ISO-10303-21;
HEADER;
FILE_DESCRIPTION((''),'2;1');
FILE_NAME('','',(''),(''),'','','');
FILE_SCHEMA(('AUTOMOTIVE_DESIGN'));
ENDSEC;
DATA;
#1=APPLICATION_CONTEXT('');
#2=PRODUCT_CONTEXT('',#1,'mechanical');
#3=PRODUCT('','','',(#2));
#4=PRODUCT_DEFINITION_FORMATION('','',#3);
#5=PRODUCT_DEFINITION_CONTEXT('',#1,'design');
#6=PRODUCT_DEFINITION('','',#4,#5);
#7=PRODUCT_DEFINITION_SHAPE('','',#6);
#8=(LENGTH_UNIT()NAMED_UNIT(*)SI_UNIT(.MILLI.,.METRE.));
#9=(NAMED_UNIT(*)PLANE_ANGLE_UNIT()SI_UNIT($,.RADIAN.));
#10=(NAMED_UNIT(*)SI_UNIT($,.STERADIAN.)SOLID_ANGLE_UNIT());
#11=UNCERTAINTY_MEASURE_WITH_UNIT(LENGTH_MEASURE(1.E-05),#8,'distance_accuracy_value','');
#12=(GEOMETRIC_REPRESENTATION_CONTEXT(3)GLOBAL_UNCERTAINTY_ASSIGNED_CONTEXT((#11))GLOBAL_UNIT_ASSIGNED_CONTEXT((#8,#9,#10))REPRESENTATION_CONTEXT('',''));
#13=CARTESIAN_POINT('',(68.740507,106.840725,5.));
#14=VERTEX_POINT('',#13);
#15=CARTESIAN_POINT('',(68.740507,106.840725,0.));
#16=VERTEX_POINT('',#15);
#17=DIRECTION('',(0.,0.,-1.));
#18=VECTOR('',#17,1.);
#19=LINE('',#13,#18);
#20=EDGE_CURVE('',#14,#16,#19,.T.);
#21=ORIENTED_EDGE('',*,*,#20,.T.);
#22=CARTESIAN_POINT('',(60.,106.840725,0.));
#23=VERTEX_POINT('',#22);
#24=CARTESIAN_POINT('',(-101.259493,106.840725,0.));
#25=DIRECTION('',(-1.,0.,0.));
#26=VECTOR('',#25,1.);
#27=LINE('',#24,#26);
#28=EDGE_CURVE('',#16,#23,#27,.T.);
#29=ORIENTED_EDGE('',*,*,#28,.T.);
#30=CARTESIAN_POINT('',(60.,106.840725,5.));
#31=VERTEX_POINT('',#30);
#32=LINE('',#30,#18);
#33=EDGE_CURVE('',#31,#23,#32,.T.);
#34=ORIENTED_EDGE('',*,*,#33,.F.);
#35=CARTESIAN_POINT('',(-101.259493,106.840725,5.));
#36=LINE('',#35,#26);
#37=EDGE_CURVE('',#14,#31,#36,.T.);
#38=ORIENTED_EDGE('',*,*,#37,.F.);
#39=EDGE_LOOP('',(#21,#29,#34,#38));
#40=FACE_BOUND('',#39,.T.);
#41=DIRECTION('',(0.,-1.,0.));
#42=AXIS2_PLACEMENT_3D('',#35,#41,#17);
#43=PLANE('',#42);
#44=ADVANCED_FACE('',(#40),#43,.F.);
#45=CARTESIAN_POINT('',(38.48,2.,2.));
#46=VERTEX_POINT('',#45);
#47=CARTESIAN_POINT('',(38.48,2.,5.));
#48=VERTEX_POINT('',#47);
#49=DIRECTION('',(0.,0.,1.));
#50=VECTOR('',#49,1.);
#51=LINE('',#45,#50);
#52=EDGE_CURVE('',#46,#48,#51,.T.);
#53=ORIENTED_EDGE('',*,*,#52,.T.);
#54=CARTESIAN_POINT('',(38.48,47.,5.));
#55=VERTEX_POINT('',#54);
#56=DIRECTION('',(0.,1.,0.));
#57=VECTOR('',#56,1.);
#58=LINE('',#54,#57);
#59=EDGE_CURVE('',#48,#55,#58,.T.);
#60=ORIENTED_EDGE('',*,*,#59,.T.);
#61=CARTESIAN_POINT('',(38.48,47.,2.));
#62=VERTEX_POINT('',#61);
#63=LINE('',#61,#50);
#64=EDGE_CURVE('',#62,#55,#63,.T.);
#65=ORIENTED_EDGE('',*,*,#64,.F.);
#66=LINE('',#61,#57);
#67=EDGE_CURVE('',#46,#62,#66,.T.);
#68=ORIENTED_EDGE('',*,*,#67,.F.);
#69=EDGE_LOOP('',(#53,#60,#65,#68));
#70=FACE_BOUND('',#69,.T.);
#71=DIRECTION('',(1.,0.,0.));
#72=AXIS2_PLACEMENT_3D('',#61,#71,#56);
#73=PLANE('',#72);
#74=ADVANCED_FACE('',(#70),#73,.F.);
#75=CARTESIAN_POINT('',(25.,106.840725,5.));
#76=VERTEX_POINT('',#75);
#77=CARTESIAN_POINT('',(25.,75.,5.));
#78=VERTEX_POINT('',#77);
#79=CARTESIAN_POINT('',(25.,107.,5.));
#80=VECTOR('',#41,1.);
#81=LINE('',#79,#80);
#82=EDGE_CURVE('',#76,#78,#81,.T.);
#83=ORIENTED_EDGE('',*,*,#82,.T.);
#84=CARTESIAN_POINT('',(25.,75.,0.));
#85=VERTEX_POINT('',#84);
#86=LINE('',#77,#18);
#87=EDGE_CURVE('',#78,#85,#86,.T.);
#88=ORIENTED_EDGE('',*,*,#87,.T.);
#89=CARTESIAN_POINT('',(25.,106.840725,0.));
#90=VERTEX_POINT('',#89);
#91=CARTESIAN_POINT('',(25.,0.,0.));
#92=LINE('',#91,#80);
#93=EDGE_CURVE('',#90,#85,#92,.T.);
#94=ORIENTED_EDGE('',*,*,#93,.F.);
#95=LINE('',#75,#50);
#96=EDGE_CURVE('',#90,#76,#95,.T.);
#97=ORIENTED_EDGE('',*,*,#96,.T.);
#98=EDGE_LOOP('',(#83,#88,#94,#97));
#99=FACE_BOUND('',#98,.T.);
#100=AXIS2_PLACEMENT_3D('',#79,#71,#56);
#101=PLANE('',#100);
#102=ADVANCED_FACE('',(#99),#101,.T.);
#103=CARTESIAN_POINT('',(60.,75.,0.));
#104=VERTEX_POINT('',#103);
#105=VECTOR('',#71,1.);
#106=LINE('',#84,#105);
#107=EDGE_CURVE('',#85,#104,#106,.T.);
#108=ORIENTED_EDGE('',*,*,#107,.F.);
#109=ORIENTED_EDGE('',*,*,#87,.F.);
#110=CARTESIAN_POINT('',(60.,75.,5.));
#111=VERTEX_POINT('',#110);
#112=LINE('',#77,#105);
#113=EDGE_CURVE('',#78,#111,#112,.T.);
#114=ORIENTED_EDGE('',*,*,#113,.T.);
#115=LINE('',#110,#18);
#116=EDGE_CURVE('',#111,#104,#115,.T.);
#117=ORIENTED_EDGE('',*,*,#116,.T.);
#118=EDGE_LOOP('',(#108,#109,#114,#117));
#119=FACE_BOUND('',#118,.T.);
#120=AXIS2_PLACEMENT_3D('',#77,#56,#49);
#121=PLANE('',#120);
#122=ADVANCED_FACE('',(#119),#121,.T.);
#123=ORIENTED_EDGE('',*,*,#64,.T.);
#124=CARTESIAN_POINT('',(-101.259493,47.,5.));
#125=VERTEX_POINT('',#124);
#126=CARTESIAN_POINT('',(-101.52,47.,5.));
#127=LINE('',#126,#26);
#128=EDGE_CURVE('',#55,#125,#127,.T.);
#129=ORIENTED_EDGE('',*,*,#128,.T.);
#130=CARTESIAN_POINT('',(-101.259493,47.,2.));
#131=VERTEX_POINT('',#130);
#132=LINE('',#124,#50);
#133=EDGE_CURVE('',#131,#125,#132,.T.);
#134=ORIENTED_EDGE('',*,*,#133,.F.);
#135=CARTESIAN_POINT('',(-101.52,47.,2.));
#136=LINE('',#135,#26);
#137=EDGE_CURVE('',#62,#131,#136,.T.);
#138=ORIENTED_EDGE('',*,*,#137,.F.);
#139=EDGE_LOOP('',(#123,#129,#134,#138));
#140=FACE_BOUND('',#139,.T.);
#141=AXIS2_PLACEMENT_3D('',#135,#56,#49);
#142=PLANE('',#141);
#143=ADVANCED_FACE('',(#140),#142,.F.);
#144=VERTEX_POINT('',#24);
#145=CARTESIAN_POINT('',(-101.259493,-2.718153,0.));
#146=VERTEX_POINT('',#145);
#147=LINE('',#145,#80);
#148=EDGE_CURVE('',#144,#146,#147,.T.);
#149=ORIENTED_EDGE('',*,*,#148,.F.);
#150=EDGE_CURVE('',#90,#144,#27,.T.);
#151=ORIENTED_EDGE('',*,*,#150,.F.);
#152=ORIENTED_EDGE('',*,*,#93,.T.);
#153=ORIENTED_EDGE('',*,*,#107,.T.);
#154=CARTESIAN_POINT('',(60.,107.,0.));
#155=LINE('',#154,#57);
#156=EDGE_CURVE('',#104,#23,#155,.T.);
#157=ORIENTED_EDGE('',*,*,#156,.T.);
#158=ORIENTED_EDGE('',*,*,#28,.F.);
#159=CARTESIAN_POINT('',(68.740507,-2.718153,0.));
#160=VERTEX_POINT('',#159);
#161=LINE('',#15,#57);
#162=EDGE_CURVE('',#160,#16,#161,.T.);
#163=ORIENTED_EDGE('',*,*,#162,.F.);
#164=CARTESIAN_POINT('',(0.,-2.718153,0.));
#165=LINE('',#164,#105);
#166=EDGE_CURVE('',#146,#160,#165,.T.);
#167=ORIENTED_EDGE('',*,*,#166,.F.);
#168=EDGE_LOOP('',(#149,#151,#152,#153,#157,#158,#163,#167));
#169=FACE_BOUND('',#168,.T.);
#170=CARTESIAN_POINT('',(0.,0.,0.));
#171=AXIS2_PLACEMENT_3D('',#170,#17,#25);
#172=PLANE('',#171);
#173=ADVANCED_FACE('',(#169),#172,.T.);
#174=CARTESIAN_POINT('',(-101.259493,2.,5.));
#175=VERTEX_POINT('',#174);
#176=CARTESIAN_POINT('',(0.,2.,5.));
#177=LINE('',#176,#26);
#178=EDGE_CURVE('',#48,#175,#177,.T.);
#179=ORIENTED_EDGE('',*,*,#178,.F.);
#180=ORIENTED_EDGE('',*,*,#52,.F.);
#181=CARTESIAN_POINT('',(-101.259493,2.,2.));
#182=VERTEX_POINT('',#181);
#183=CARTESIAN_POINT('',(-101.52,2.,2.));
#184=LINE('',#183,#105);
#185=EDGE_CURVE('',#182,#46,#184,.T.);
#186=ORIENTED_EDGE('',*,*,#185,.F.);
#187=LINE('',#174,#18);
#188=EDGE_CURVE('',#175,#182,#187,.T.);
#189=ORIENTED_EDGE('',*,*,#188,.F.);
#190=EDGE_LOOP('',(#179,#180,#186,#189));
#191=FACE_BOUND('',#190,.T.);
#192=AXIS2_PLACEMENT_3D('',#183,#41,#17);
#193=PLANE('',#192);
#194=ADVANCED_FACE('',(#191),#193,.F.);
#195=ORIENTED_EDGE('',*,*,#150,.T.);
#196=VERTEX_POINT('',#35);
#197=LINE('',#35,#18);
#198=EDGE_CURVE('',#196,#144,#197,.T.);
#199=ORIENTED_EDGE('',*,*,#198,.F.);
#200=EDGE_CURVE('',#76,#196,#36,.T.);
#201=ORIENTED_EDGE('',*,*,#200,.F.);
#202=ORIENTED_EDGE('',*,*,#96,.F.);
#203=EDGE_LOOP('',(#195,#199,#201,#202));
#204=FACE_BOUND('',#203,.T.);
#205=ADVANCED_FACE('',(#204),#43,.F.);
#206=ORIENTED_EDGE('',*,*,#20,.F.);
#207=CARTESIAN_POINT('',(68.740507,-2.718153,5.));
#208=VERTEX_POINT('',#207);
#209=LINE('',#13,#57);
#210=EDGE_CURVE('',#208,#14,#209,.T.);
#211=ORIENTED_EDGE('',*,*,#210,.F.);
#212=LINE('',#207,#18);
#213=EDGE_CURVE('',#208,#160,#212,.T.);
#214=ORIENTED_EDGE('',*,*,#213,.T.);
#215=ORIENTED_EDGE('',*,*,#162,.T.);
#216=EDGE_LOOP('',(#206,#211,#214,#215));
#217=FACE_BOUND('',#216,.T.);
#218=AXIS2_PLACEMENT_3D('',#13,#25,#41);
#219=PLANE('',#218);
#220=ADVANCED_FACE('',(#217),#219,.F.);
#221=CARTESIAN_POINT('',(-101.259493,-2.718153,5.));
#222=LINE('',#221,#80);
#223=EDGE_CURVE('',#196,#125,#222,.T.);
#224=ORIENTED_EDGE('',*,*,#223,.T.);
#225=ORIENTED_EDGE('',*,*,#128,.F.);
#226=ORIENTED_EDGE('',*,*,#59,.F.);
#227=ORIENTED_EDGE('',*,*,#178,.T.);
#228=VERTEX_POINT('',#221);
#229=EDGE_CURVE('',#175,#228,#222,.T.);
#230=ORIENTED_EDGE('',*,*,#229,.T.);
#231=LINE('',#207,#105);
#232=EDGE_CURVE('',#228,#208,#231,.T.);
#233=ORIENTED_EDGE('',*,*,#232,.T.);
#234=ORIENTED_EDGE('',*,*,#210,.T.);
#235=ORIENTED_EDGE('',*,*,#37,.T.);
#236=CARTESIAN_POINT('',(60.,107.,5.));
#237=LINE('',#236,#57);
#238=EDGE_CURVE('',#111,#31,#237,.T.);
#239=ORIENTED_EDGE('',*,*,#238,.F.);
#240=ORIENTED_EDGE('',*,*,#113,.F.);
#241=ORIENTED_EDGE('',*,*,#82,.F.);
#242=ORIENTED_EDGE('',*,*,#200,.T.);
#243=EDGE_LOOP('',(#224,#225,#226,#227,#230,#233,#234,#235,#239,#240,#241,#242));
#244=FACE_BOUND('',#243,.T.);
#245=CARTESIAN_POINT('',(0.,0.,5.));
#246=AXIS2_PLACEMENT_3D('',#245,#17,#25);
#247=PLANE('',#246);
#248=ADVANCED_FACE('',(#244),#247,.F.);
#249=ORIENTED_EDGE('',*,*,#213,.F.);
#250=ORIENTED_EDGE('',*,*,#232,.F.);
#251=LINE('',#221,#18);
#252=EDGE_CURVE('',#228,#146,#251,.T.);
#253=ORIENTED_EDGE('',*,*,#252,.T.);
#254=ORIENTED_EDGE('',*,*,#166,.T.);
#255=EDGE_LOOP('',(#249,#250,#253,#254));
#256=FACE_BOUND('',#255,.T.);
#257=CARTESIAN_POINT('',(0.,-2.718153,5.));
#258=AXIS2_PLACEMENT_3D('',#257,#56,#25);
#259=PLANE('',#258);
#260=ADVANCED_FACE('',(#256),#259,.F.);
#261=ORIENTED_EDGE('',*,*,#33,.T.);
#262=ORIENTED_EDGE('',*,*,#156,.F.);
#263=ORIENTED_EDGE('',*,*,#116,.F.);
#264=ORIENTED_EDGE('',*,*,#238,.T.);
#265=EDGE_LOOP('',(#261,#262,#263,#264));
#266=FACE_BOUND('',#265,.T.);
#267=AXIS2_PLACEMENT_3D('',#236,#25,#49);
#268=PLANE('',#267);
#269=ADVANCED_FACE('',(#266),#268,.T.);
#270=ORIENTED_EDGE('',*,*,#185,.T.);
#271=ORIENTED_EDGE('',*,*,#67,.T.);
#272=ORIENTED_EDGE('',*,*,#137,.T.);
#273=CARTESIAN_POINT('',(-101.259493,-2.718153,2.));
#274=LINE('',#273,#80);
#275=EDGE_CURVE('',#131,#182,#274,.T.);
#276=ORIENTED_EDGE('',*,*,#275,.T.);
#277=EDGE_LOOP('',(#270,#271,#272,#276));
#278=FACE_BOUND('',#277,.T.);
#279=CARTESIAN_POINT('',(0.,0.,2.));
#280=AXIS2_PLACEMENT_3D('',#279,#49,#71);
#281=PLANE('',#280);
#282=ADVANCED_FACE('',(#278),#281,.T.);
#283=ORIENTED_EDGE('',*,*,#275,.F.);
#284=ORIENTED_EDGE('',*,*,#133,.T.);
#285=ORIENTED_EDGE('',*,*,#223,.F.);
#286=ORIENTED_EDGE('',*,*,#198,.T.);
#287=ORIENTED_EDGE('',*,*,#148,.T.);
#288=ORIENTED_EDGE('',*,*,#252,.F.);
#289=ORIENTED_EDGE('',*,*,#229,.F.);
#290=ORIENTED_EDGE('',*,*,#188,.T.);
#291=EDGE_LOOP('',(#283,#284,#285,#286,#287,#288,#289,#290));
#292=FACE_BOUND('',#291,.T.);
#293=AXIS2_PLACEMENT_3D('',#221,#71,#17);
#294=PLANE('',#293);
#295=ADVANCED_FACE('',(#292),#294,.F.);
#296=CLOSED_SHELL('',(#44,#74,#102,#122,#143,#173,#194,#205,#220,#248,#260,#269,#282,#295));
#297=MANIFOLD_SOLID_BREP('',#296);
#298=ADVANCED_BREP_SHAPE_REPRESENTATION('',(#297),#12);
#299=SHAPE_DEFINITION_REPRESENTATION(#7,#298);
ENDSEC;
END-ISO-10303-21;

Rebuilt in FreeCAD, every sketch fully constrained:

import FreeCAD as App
import Part
import Sketcher


def add_polygon(sketch, points):
    """Adds a closed chain of lines whose ends are joined by coincident constraints."""
    first, n = sketch.GeometryCount, len(points)
    for a, b in zip(points, points[1:] + points[:1]):
        sketch.addGeometry(Part.LineSegment(App.Vector(*a, 0), App.Vector(*b, 0)), False)
    for i in range(n):
        sketch.addConstraint(Sketcher.Constraint("Coincident", first + i, 2, first + (i + 1) % n, 1))

doc = App.newDocument("Part")
params = doc.addObject("Spreadsheet::Sheet", "Params")
for row, (alias, value) in enumerate([
    ("sketch1_width", "170 mm"),
    ("pad1_length", "5 mm"),
    ("sketch2_width", "140 mm"),
    ("sketch2_height", "45 mm"),
    ("pocket1_length", "3 mm"),
    ("sketch3_width", "35 mm"),
    ("sketch3_height", "32 mm"),
], start=1):
    params.set(f"A{row}", alias)
    params.set(f"B{row}", "=" + value)
    params.setAlias(f"B{row}", alias)

body = doc.addObject("PartDesign::Body", "Body")

# Sketch on XY plane
sketch1 = body.newObject("Sketcher::SketchObject", "Sketch")
sketch1.AttachmentSupport = (doc.getObject("XY_Plane"), [""])
sketch1.MapMode = "FlatFace"
add_polygon(sketch1, [(-101, -3), (69, -3), (69, 107), (-101, 107)])  # lines 0-3
sketch1.addConstraint([
    Sketcher.Constraint("Horizontal", 0),
    Sketcher.Constraint("Vertical", 1),
    Sketcher.Constraint("Horizontal", 2),
    Sketcher.Constraint("Vertical", 3),
    Sketcher.Constraint("DistanceX", 0, 1, 0, 2, 170.0),
    Sketcher.Constraint("DistanceY", 1, 1, 1, 2, 109.558878),
    Sketcher.Constraint("DistanceX", -1, 1, 0, 2, 68.740507),
    Sketcher.Constraint("DistanceY", 0, 2, -1, 1, 2.718153),
])
sketch1.setExpression("Constraints[8]", "Params.sketch1_width")
pad1 = body.newObject("PartDesign::Pad", "Pad")
pad1.Profile = sketch1
pad1.setExpression("Length", "Params.pad1_length")

# Sketch on XY plane
sketch2 = body.newObject("Sketcher::SketchObject", "Sketch001")
sketch2.AttachmentSupport = (doc.getObject("XY_Plane"), [""])
sketch2.MapMode = "FlatFace"
sketch2.AttachmentOffset = App.Placement(App.Vector(0, 0, 5), App.Rotation())
add_polygon(sketch2, [(-102, 47), (-102, 2), (38, 2), (38, 47)])  # lines 0-3
sketch2.addConstraint([
    Sketcher.Constraint("Vertical", 0),
    Sketcher.Constraint("Horizontal", 1),
    Sketcher.Constraint("Vertical", 2),
    Sketcher.Constraint("Horizontal", 3),
    Sketcher.Constraint("DistanceX", 1, 1, 1, 2, 140.0),
    Sketcher.Constraint("DistanceY", 0, 2, 0, 1, 45.0),
    Sketcher.Constraint("DistanceY", -1, 1, 0, 2, 2.0),
    Sketcher.Constraint("DistanceX", 0, 2, -1, 1, 101.52),
])
sketch2.setExpression("Constraints[8]", "Params.sketch2_width")
sketch2.setExpression("Constraints[9]", "Params.sketch2_height")
pocket1 = body.newObject("PartDesign::Pocket", "Pocket")
pocket1.Profile = sketch2
pocket1.setExpression("Length", "Params.pocket1_length")

# Sketch on XY plane
sketch3 = body.newObject("Sketcher::SketchObject", "Sketch002")
sketch3.AttachmentSupport = (doc.getObject("XY_Plane"), [""])
sketch3.MapMode = "FlatFace"
add_polygon(sketch3, [(25, 107), (25, 75), (60, 75), (60, 107)])  # lines 0-3
sketch3.addConstraint([
    Sketcher.Constraint("Vertical", 0),
    Sketcher.Constraint("Horizontal", 1),
    Sketcher.Constraint("Vertical", 2),
    Sketcher.Constraint("Horizontal", 3),
    Sketcher.Constraint("DistanceX", 1, 1, 1, 2, 35.0),
    Sketcher.Constraint("DistanceY", 0, 2, 0, 1, 32.0),
    Sketcher.Constraint("DistanceX", -1, 1, 0, 2, 25.0),
    Sketcher.Constraint("DistanceY", -1, 1, 0, 2, 75.0),
])
sketch3.setExpression("Constraints[8]", "Params.sketch3_width")
sketch3.setExpression("Constraints[9]", "Params.sketch3_height")
pocket2 = body.newObject("PartDesign::Pocket", "Pocket001")
pocket2.Profile = sketch3
pocket2.Type = "ThroughAll"
pocket2.Reversed = True

doc.recompute()
